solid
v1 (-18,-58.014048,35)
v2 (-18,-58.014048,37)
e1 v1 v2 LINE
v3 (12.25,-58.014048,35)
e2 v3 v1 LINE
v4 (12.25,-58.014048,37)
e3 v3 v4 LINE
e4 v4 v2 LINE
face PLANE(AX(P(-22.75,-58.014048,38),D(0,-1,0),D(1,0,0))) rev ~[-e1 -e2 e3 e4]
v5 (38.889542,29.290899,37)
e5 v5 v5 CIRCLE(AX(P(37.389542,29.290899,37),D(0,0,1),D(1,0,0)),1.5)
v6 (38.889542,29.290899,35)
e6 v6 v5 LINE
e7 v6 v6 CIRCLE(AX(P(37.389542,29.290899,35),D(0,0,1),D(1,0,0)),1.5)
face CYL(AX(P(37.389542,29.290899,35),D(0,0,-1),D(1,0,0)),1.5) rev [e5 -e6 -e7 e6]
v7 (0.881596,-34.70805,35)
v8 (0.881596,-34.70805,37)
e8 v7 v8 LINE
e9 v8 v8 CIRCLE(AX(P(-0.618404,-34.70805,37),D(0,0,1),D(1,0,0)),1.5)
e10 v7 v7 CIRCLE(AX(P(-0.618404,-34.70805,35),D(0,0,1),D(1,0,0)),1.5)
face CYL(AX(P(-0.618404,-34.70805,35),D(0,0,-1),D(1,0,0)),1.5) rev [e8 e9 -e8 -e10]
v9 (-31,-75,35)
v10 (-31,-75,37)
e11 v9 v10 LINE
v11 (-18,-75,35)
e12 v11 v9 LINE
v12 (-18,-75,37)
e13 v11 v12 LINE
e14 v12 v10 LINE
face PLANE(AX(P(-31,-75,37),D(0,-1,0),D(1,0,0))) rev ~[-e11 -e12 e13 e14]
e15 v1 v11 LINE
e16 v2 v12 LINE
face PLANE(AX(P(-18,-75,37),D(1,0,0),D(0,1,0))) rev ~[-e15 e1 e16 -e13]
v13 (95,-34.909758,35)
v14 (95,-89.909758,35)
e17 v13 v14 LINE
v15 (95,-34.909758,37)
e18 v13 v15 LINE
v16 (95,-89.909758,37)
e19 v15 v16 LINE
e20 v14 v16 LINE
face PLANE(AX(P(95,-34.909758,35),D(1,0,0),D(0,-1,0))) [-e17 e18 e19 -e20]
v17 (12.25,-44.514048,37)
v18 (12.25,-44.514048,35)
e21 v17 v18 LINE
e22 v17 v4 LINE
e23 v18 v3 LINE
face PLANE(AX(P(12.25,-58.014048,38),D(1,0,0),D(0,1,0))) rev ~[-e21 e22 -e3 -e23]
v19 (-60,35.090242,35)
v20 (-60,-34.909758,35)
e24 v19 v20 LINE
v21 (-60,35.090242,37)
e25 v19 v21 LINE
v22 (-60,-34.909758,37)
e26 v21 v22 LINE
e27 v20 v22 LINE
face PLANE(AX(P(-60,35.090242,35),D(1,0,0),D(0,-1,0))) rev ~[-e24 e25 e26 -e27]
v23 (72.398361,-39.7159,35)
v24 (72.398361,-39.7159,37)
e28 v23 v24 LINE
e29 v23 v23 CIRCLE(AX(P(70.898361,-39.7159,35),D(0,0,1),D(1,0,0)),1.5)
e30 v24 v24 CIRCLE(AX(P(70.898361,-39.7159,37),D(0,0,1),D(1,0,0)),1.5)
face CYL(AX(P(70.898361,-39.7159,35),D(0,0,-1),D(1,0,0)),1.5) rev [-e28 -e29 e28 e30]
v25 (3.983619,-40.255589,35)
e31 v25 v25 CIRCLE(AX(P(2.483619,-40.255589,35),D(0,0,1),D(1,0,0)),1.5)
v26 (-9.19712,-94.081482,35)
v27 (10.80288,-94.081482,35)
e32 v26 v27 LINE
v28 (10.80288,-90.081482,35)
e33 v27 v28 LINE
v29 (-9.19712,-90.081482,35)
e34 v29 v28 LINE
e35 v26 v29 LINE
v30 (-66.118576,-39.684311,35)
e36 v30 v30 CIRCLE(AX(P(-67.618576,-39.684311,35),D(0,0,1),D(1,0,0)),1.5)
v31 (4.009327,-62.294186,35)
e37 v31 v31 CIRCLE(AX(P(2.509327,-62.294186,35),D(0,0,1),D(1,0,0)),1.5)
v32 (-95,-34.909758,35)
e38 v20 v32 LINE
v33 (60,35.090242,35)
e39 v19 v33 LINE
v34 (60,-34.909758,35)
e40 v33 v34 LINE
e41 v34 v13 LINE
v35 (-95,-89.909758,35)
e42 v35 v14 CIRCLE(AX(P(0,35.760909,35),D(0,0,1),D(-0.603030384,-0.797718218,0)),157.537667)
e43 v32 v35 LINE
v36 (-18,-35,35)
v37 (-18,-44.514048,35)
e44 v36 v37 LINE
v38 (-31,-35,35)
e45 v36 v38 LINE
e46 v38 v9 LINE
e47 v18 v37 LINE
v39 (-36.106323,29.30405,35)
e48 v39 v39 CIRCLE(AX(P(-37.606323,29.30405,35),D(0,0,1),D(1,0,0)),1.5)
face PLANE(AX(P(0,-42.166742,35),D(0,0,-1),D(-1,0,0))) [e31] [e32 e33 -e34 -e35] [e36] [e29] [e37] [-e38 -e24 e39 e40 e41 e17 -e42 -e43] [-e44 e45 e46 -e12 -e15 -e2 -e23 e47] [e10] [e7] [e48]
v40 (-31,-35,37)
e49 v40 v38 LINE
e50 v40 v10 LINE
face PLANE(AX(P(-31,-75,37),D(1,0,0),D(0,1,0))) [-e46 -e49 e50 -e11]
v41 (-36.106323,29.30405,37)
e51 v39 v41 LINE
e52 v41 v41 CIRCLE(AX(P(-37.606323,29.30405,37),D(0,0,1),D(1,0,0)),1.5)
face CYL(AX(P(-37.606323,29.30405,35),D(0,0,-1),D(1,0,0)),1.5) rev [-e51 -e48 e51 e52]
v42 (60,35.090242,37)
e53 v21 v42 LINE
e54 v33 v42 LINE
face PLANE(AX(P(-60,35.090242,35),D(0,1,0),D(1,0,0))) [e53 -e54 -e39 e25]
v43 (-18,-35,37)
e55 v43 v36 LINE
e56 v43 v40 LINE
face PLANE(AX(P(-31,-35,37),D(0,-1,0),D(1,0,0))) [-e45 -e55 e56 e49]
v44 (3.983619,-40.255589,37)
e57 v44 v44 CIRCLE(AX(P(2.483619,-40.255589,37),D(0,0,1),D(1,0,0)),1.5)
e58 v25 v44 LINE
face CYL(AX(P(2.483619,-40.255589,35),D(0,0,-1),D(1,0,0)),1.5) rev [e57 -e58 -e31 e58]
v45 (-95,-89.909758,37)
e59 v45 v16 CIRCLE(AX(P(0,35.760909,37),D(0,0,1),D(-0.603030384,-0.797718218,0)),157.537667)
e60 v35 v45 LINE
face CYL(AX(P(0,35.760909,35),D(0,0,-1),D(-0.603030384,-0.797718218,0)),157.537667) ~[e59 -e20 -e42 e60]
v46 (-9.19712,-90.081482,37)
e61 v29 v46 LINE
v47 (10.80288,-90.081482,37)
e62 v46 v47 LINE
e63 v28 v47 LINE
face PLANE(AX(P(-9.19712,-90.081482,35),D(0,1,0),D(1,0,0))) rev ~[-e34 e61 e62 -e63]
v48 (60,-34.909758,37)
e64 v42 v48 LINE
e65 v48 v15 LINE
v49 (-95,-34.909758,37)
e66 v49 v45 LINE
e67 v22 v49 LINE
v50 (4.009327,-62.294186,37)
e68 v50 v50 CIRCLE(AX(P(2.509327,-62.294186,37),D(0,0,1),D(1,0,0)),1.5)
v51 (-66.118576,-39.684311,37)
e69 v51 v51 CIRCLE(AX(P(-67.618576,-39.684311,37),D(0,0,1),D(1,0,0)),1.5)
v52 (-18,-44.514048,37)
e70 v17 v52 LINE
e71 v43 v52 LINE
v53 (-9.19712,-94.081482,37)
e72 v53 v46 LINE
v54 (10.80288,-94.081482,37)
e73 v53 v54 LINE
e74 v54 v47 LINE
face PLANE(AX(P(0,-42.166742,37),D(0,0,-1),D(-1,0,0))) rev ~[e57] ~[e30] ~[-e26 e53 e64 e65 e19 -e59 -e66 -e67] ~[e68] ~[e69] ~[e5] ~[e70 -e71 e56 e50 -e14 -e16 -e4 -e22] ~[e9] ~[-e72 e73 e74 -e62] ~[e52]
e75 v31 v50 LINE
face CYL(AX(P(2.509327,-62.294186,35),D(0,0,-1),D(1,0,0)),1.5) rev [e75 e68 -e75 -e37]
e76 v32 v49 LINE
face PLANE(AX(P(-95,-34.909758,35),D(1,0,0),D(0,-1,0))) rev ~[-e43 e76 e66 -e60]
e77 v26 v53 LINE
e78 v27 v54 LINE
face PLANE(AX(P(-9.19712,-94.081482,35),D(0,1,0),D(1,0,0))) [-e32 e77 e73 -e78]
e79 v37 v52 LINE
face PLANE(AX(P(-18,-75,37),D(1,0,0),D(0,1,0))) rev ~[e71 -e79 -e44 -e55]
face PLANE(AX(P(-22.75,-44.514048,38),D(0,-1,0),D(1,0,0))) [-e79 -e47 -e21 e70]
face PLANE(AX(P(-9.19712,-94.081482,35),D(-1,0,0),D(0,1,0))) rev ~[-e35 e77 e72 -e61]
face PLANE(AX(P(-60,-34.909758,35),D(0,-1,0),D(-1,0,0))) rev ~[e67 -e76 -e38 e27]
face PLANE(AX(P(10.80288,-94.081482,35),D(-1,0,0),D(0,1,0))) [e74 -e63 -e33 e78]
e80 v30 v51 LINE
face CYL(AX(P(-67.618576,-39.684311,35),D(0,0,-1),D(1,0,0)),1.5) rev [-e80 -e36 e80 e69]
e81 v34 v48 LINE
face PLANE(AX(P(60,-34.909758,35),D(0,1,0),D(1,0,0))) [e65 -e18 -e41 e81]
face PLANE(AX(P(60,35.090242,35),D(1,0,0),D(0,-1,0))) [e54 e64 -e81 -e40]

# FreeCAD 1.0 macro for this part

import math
import FreeCAD as App
import Part
import Sketcher

V = App.Vector
Q = App.Units.Quantity

doc = App.newDocument("Part")
body = doc.addObject("PartDesign::Body", "Body")

# Sketch on XY plane
sketch1 = body.newObject("Sketcher::SketchObject", "Sketch")
sketch1.AttachmentSupport = (doc.getObject("XY_Plane"), [""])
sketch1.MapMode = "FlatFace"
sketch1.AttachmentOffset = App.Placement(V(0, 0, 37), App.Rotation())
sketch1.addGeometry([
    Part.LineSegment(V(-31, -35, 0), V(-31, -75, 0)),
    Part.LineSegment(V(-31, -75, 0), V(-18, -75, 0)),
    Part.LineSegment(V(-18, -75, 0), V(-18, -35, 0)),
    Part.LineSegment(V(-18, -35, 0), V(-31, -35, 0)),
], False)
sketch1.addConstraint([
    Sketcher.Constraint("Coincident", 0, 2, 1, 1),
    Sketcher.Constraint("Coincident", 1, 2, 2, 1),
    Sketcher.Constraint("Coincident", 2, 2, 3, 1),
    Sketcher.Constraint("Coincident", 3, 2, 0, 1),
    Sketcher.Constraint("Vertical", 0),
    Sketcher.Constraint("Horizontal", 1),
    Sketcher.Constraint("Vertical", 2),
    Sketcher.Constraint("Horizontal", 3),
    Sketcher.Constraint("DistanceX", 1, 1, 1, 2, Q("13 mm")),
    Sketcher.Constraint("DistanceY", 0, 2, 0, 1, Q("40 mm")),
    Sketcher.Constraint("DistanceX", 0, 2, -1, 1, Q("31 mm")),
    Sketcher.Constraint("DistanceY", 0, 2, -1, 1, Q("75 mm")),
])
pad1 = body.newObject("PartDesign::Pad", "Pad")
pad1.Profile = sketch1
pad1.Length = 15
pad1.Midplane = True
body2 = doc.addObject("PartDesign::Body", "Body001")

# Sketch on XY plane
sketch2 = body2.newObject("Sketcher::SketchObject", "Sketch001")
sketch2.AttachmentSupport = (doc.getObject("XY_Plane001"), [""])
sketch2.MapMode = "FlatFace"
sketch2.AttachmentOffset = App.Placement(V(0, 0, 38), App.Rotation())
sketch2.addGeometry([
    Part.LineSegment(V(-23, -45, 0), V(-23, -58, 0)),
    Part.LineSegment(V(-23, -58, 0), V(12, -58, 0)),
    Part.LineSegment(V(12, -58, 0), V(12, -45, 0)),
    Part.LineSegment(V(12, -45, 0), V(-23, -45, 0)),
], False)
sketch2.addConstraint([
    Sketcher.Constraint("Coincident", 0, 2, 1, 1),
    Sketcher.Constraint("Coincident", 1, 2, 2, 1),
    Sketcher.Constraint("Coincident", 2, 2, 3, 1),
    Sketcher.Constraint("Coincident", 3, 2, 0, 1),
    Sketcher.Constraint("Vertical", 0),
    Sketcher.Constraint("Horizontal", 1),
    Sketcher.Constraint("Vertical", 2),
    Sketcher.Constraint("Horizontal", 3),
    Sketcher.Constraint("DistanceX", 1, 1, 1, 2, Q("35 mm")),
    Sketcher.Constraint("DistanceY", 0, 2, 0, 1, Q("13.5 mm")),
    Sketcher.Constraint("DistanceX", 0, 2, -1, 1, Q("23 mm")),
    Sketcher.Constraint("DistanceY", 0, 2, -1, 1, Q("58.014048 mm")),
])
pad2 = body2.newObject("PartDesign::Pad", "Pad001")
pad2.Profile = sketch2
pad2.Length = 30
pad2.Midplane = True
body3 = doc.addObject("PartDesign::Body", "Body002")
doc.recompute()

body2.Placement = App.Placement(V(0.25, 0, 0), App.Rotation(V(0, 0, 1), 0))
boolean = body3.newObject("PartDesign::Boolean", "Boolean")
boolean.Type = "Fuse"
boolean.addObjects([body2])
body4 = doc.addObject("PartDesign::Body", "Body003")

# Sketch on XY plane
sketch3 = body4.newObject("Sketcher::SketchObject", "Sketch002")
sketch3.AttachmentSupport = (doc.getObject("XY_Plane003"), [""])
sketch3.MapMode = "FlatFace"
sketch3.AttachmentOffset = App.Placement(V(0, 0, 35), App.Rotation())
sketch3.addGeometry([
    Part.LineSegment(V(60, 35.1, 0), V(-60, 35.1, 0)),  # 0
    Part.LineSegment(V(-60, 35.1, 0), V(-60, -34.9, 0)),  # 1
    Part.LineSegment(V(-60, -34.9, 0), V(-95, -34.9, 0)),  # 2
    Part.LineSegment(V(-95, -34.9, 0), V(-95, -89.9, 0)),  # 3
    Part.ArcOfCircle(Part.Circle(V(0, 35.8, 0), V(0, 0, 1), 157.5), math.radians(-127), math.radians(-53)),  # 4
    Part.LineSegment(V(95, -89.9, 0), V(95, -34.9, 0)),  # 5
    Part.LineSegment(V(95, -34.9, 0), V(60, -34.9, 0)),  # 6
    Part.LineSegment(V(60, -34.9, 0), V(60, 35.1, 0)),  # 7
    Part.Circle(V(70.9, -39.7, 0), V(0, 0, 1), 1.5),  # 8
    Part.Circle(V(2.5, -62.3, 0), V(0, 0, 1), 1.5),  # 9
    Part.Circle(V(2.5, -40.3, 0), V(0, 0, 1), 1.5),  # 10
    Part.LineSegment(V(-9.2, -94.1, 0), V(-9.2, -90.1, 0)),  # 11
    Part.LineSegment(V(-9.2, -90.1, 0), V(10.8, -90.1, 0)),  # 12
    Part.LineSegment(V(10.8, -90.1, 0), V(10.8, -94.1, 0)),  # 13
    Part.LineSegment(V(10.8, -94.1, 0), V(-9.2, -94.1, 0)),  # 14
    Part.Circle(V(-0.6, -34.7, 0), V(0, 0, 1), 1.5),  # 15
    Part.Circle(V(-67.6, -39.7, 0), V(0, 0, 1), 1.5),  # 16
    Part.Circle(V(37.4, 29.3, 0), V(0, 0, 1), 1.5),  # 17
    Part.Circle(V(-37.6, 29.3, 0), V(0, 0, 1), 1.5),  # 18
], False)
sketch3.addConstraint([
    Sketcher.Constraint("Coincident", 0, 2, 1, 1),
    Sketcher.Constraint("Coincident", 1, 2, 2, 1),
    Sketcher.Constraint("Coincident", 2, 2, 3, 1),
    Sketcher.Constraint("Coincident", 3, 2, 4, 1),
    Sketcher.Constraint("Coincident", 4, 2, 5, 1),
    Sketcher.Constraint("Coincident", 5, 2, 6, 1),
    Sketcher.Constraint("Coincident", 6, 2, 7, 1),
    Sketcher.Constraint("Coincident", 7, 2, 0, 1),
    Sketcher.Constraint("Coincident", 11, 2, 12, 1),
    Sketcher.Constraint("Coincident", 12, 2, 13, 1),
    Sketcher.Constraint("Coincident", 13, 2, 14, 1),
    Sketcher.Constraint("Coincident", 14, 2, 11, 1),
    Sketcher.Constraint("Horizontal", 0),
    Sketcher.Constraint("Vertical", 1),
    Sketcher.Constraint("Horizontal", 2),
    Sketcher.Constraint("Vertical", 3),
    Sketcher.Constraint("Vertical", 5),
    Sketcher.Constraint("Horizontal", 6),
    Sketcher.Constraint("Vertical", 7),
    Sketcher.Constraint("Vertical", 11),
    Sketcher.Constraint("Horizontal", 12),
    Sketcher.Constraint("Vertical", 13),
    Sketcher.Constraint("Horizontal", 14),
    Sketcher.Constraint("Equal", 8, 9),
    Sketcher.Constraint("Equal", 9, 10),
    Sketcher.Constraint("Equal", 10, 15),
    Sketcher.Constraint("Equal", 15, 16),
    Sketcher.Constraint("Equal", 16, 17),
    Sketcher.Constraint("Equal", 17, 18),
    Sketcher.Constraint("Symmetric", 3, 2, 4, 2, -2),
    Sketcher.Constraint("Symmetric", 1, 2, 6, 2, -2),
    Sketcher.Constraint("Diameter", 8, Q("3 mm")),
    Sketcher.Constraint("DistanceX", 0, 2, 0, 1, Q("120 mm")),
    Sketcher.Constraint("DistanceX", 2, 2, 2, 1, Q("35 mm")),
    Sketcher.Constraint("DistanceX", 12, 1, 12, 2, Q("20 mm")),
    Sketcher.Constraint("DistanceY", 1, 2, 1, 1, Q("70 mm")),
    Sketcher.Constraint("DistanceY", 3, 2, 3, 1, Q("55 mm")),
    Sketcher.Constraint("DistanceY", 11, 1, 11, 2, Q("4 mm")),
    Sketcher.Constraint("Radius", 4, Q("157.537667 mm")),
    Sketcher.Constraint("DistanceY", 8, 3, -1, 1, Q("39.7159 mm")),
    Sketcher.Constraint("DistanceY", -1, 1, 17, 3, Q("29.290899 mm")),
    Sketcher.Constraint("DistanceY", 10, 3, 4, 3, Q("76.016498 mm")),
    Sketcher.Constraint("DistanceY", 15, 3, 18, 3, Q("64.0121 mm")),
    Sketcher.Constraint("DistanceY", -1, 1, 4, 3, Q("35.760909 mm")),
    Sketcher.Constraint("DistanceX", -1, 1, 8, 3, Q("70.898361 mm")),
    Sketcher.Constraint("DistanceX", -1, 1, 10, 3, Q("2.483619 mm")),
    Sketcher.Constraint("DistanceY", 15, 3, -1, 1, Q("34.70805 mm")),
    Sketcher.Constraint("DistanceY", 16, 3, -1, 1, Q("39.684311 mm")),
    Sketcher.Constraint("DistanceX", 11, 2, -1, 1, Q("9.19712 mm")),
    Sketcher.Constraint("DistanceY", 11, 2, -1, 1, Q("90.081482 mm")),
    Sketcher.Constraint("DistanceX", 15, 3, 9, 3, Q("3.127731 mm")),
    Sketcher.Constraint("DistanceX", 17, 3, 8, 3, Q("33.508819 mm")),
    Sketcher.Constraint("DistanceX", 18, 3, 15, 3, Q("36.987919 mm")),
    Sketcher.Constraint("DistanceY", 9, 3, 1, 2, Q("27.384428 mm")),
    Sketcher.Constraint("DistanceX", -1, 1, 9, 3, Q("2.509327 mm")),
    Sketcher.Constraint("DistanceX", 16, 3, -1, 1, Q("67.618576 mm")),
])
pad3 = body4.newObject("PartDesign::Pad", "Pad002")
pad3.Profile = sketch3
pad3.Length = 2
doc.recompute()

boolean2 = body4.newObject("PartDesign::Boolean", "Boolean001")
boolean2.Type = "Cut"
boolean2.addObjects([body3])
doc.recompute()

boolean3 = body4.newObject("PartDesign::Boolean", "Boolean002")
boolean3.Type = "Cut"
boolean3.addObjects([body])

doc.recompute()
